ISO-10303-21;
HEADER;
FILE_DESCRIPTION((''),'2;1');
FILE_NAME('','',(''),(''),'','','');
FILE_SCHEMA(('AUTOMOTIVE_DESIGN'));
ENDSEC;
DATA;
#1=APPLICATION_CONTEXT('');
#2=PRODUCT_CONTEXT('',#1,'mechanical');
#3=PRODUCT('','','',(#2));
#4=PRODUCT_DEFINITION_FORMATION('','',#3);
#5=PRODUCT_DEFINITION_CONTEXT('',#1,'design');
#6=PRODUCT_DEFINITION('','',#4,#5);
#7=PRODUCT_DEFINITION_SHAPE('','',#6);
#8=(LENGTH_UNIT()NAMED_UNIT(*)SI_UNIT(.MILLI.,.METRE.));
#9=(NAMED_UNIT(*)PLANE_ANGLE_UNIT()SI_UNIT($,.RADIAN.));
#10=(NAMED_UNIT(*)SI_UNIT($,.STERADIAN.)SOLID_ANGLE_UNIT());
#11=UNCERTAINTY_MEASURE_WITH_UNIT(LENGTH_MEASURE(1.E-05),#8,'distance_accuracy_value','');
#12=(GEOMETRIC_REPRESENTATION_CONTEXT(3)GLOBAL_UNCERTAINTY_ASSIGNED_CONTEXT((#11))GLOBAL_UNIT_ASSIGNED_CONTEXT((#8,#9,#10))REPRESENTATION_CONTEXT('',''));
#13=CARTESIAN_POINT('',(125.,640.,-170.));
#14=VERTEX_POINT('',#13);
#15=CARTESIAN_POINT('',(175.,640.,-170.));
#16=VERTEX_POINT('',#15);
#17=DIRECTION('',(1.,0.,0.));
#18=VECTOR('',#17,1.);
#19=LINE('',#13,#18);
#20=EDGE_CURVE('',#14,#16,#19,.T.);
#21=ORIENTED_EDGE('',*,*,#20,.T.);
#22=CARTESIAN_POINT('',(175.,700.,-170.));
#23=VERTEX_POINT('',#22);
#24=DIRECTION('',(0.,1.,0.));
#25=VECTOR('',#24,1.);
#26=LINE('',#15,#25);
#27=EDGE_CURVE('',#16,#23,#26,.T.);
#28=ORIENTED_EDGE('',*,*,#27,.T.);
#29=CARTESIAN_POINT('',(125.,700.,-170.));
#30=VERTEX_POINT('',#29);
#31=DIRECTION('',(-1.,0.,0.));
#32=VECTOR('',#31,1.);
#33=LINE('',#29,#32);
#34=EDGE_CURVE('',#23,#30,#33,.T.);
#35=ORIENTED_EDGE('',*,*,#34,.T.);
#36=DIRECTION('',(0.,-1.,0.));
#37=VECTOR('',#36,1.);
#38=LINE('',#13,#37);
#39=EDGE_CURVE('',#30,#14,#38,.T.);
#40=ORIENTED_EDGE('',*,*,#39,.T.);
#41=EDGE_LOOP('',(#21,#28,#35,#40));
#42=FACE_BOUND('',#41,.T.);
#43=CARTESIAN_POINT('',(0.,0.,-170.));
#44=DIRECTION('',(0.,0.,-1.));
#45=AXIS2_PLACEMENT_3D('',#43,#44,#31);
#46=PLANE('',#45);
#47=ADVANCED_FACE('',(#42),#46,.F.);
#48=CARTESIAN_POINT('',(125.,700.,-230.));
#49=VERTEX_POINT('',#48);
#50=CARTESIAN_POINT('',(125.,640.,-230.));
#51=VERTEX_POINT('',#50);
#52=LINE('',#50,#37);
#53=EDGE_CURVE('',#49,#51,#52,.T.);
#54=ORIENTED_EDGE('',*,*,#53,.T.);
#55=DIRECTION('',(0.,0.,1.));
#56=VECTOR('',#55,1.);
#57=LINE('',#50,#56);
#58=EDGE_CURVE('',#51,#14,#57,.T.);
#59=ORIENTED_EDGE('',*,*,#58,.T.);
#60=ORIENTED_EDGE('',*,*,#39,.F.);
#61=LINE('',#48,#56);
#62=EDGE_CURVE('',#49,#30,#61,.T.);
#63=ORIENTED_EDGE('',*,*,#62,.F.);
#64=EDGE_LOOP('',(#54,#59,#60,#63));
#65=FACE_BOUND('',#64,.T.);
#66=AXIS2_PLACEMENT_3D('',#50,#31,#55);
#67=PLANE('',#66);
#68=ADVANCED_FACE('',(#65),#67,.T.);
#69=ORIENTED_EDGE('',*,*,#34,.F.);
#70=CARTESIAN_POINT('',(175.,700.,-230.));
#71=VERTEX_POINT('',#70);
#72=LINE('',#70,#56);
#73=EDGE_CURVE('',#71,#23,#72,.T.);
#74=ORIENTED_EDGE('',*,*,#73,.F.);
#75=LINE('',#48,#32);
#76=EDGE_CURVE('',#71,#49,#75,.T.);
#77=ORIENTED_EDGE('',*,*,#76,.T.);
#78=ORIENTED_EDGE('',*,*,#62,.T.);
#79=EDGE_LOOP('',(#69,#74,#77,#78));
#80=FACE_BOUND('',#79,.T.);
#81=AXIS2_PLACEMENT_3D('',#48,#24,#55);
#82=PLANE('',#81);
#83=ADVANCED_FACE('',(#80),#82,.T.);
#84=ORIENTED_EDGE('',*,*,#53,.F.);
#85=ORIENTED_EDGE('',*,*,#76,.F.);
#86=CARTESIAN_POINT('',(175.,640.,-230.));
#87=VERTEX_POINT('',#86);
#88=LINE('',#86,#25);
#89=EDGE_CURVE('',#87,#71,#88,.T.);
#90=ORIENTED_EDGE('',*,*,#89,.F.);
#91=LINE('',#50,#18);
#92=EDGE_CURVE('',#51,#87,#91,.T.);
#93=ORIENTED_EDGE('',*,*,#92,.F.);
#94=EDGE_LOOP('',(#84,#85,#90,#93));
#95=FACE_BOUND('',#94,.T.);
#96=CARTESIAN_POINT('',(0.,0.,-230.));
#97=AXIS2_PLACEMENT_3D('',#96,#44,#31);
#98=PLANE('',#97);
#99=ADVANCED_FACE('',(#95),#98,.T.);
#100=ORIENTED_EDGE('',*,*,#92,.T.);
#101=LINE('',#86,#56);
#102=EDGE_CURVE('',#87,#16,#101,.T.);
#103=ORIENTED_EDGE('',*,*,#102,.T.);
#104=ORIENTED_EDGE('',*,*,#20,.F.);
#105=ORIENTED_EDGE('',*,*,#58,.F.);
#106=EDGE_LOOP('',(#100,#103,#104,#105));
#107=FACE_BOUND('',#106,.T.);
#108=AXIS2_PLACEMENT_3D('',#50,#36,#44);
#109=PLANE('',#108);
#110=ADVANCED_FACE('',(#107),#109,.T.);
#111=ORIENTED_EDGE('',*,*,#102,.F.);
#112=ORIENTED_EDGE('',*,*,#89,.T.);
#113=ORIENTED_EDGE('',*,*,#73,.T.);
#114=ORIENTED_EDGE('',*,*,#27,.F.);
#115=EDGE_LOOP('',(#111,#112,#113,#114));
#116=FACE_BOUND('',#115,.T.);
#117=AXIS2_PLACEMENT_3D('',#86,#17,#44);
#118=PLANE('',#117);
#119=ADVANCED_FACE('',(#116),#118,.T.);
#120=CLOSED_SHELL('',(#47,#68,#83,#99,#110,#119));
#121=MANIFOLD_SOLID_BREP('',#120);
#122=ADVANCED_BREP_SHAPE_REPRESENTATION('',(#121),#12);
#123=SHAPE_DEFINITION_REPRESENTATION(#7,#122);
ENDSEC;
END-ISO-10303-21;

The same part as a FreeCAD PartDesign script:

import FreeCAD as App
import Part
import Sketcher

V = App.Vector
Q = App.Units.Quantity

doc = App.newDocument("Part")
body = doc.addObject("PartDesign::Body", "Body")

sketch1 = doc.addObject("Sketcher::SketchObject", "Sketch")
body.addObject(sketch1)
sketch1.AttachmentSupport = (doc.XY_Plane, [""])
sketch1.MapMode = "FlatFace"
sketch1.AttachmentOffset = App.Placement(V(0, 0, -170), App.Rotation())
sketch1.addGeometry([
    Part.LineSegment(V(125, 700, 0), V(125, 640, 0)),
    Part.LineSegment(V(125, 640, 0), V(175, 640, 0)),
    Part.LineSegment(V(175, 640, 0), V(175, 700, 0)),
    Part.LineSegment(V(175, 700, 0), V(125, 700, 0)),
], False)
sketch1.addConstraint([
    Sketcher.Constraint("Coincident", 0, 2, 1, 1),
    Sketcher.Constraint("Coincident", 1, 2, 2, 1),
    Sketcher.Constraint("Coincident", 2, 2, 3, 1),
    Sketcher.Constraint("Coincident", 3, 2, 0, 1),
    Sketcher.Constraint("Vertical", 0),
    Sketcher.Constraint("Horizontal", 1),
    Sketcher.Constraint("Vertical", 2),
    Sketcher.Constraint("Horizontal", 3),
    Sketcher.Constraint("DistanceX", 1, 1, 1, 2, Q("50 mm")),
    Sketcher.Constraint("DistanceY", 0, 2, 0, 1, Q("60 mm")),
    Sketcher.Constraint("DistanceX", -1, 1, 0, 2, Q("125 mm")),
    Sketcher.Constraint("DistanceY", -1, 1, 0, 2, Q("640 mm")),
])
pad1 = doc.addObject("PartDesign::Pad", "Pad")
body.addObject(pad1)
pad1.Profile = sketch1
pad1.Length = 60
pad1.Reversed = True

doc.recompute()
